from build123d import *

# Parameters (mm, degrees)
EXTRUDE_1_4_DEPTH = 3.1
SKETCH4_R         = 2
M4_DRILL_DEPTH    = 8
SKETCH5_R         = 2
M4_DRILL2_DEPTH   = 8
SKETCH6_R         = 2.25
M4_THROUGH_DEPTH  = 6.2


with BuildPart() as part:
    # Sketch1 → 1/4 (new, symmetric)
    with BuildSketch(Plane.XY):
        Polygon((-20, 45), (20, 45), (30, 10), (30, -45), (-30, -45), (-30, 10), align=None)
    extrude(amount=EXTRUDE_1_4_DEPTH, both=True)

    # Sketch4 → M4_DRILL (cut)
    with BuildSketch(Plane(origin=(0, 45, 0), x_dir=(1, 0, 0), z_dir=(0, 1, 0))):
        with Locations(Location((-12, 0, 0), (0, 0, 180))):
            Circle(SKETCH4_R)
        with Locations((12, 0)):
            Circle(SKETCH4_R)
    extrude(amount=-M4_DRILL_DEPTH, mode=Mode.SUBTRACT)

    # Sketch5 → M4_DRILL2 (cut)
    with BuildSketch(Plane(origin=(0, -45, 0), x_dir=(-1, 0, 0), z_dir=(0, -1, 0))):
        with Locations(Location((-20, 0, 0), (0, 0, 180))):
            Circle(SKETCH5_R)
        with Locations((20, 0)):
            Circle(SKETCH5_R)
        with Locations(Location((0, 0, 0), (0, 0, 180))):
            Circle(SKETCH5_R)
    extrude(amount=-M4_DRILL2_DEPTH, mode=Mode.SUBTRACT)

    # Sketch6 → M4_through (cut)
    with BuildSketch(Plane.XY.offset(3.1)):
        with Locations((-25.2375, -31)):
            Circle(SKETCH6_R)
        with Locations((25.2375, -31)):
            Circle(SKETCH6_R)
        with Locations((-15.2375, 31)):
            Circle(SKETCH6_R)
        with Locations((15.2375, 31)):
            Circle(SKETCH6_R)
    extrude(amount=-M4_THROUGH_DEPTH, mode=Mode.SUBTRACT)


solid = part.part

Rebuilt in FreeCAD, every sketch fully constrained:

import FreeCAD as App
import Part
import Sketcher
from FreeCAD import Vector

doc = App.newDocument("Part")
body = doc.addObject("PartDesign::Body", "Body")

# Sketch on XY plane
sketch1 = body.newObject("Sketcher::SketchObject", "Sketch")
sketch1.AttachmentSupport = (doc.getObject("XY_Plane"), [""])
sketch1.MapMode = "FlatFace"
sketch1.addGeometry([
    Part.LineSegment(Vector(20, 45, 0), Vector(-20, 45, 0)),  # 0
    Part.LineSegment(Vector(-20, 45, 0), Vector(-30, 10, 0)),  # 1
    Part.LineSegment(Vector(-30, 10, 0), Vector(-30, -45, 0)),  # 2
    Part.LineSegment(Vector(-30, -45, 0), Vector(30, -45, 0)),  # 3
    Part.LineSegment(Vector(30, -45, 0), Vector(30, 10, 0)),  # 4
    Part.LineSegment(Vector(30, 10, 0), Vector(20, 45, 0)),  # 5
], False)
sketch1.addConstraint([
    Sketcher.Constraint("Coincident", 0, 2, 1, 1),
    Sketcher.Constraint("Coincident", 1, 2, 2, 1),
    Sketcher.Constraint("Coincident", 2, 2, 3, 1),
    Sketcher.Constraint("Coincident", 3, 2, 4, 1),
    Sketcher.Constraint("Coincident", 4, 2, 5, 1),
    Sketcher.Constraint("Coincident", 5, 2, 0, 1),
    Sketcher.Constraint("Horizontal", 0),
    Sketcher.Constraint("Vertical", 2),
    Sketcher.Constraint("Horizontal", 3),
    Sketcher.Constraint("Vertical", 4),
    Sketcher.Constraint("Symmetric", 1, 2, 4, 2, -2),
    Sketcher.Constraint("Equal", 1, 5),
    Sketcher.Constraint("DistanceX", 0, 2, 0, 1, 40.0),
    Sketcher.Constraint("DistanceX", 3, 1, 3, 2, 60.0),
    Sketcher.Constraint("DistanceY", 2, 2, 2, 1, 55.0),
    Sketcher.Constraint("DistanceY", -1, 1, 0, 2, 45.0),
    Sketcher.Constraint("DistanceY", -1, 1, 1, 2, 10.0),
])
pad1 = body.newObject("PartDesign::Pad", "Pad")
pad1.Profile = sketch1
pad1.Length = 6.2
pad1.Midplane = True

# Sketch on XZ plane
sketch2 = body.newObject("Sketcher::SketchObject", "Sketch001")
sketch2.AttachmentSupport = (doc.getObject("XZ_Plane"), [""])
sketch2.MapMode = "FlatFace"
sketch2.AttachmentOffset = App.Placement(Vector(0, 0, -45), App.Rotation())
sketch2.addGeometry([
    Part.Circle(Vector(-12, 0, 0), Vector(0, 0, 1), 2),
    Part.Circle(Vector(12, 0, 0), Vector(0, 0, 1), 2),
], False)
sketch2.addConstraint([
    Sketcher.Constraint("Equal", 0, 1),
    Sketcher.Constraint("Symmetric", 0, 3, 1, 3, -1, 1),
    Sketcher.Constraint("PointOnObject", 0, 3, -1),
    Sketcher.Constraint("Diameter", 0, 4.0),
    Sketcher.Constraint("DistanceX", 0, 3, -1, 1, 12.0),
])
pocket1 = body.newObject("PartDesign::Pocket", "Pocket")
pocket1.Profile = sketch2
pocket1.Length = 8
pocket1.Reversed = True

# Sketch on XZ plane
sketch3 = body.newObject("Sketcher::SketchObject", "Sketch002")
sketch3.AttachmentSupport = (doc.getObject("XZ_Plane"), [""])
sketch3.MapMode = "FlatFace"
sketch3.AttachmentOffset = App.Placement(Vector(0, 0, 45), App.Rotation())
sketch3.addGeometry([
    Part.Circle(Vector(20, 0, 0), Vector(0, 0, 1), 2),
    Part.Circle(Vector(-20, 0, 0), Vector(0, 0, 1), 2),
    Part.Circle(Vector(0, 0, 0), Vector(0, 0, 1), 2),
], False)
sketch3.addConstraint([
    Sketcher.Constraint("Coincident", 2, 3, -1, 1),
    Sketcher.Constraint("Equal", 0, 1),
    Sketcher.Constraint("Equal", 1, 2),
    Sketcher.Constraint("Symmetric", 0, 3, 1, 3, -1, 1),
    Sketcher.Constraint("PointOnObject", 0, 3, -1),
    Sketcher.Constraint("Diameter", 0, 4.0),
    Sketcher.Constraint("DistanceX", -1, 1, 0, 3, 20.0),
])
pocket2 = body.newObject("PartDesign::Pocket", "Pocket001")
pocket2.Profile = sketch3
pocket2.Length = 8

# Sketch on XY plane
sketch4 = body.newObject("Sketcher::SketchObject", "Sketch003")
sketch4.AttachmentSupport = (doc.getObject("XY_Plane"), [""])
sketch4.MapMode = "FlatFace"
sketch4.AttachmentOffset = App.Placement(Vector(0, 0, 3.1), App.Rotation())
sketch4.addGeometry([
    Part.Circle(Vector(-25.2375, -31, 0), Vector(0, 0, 1), 2.25),
    Part.Circle(Vector(25.2375, -31, 0), Vector(0, 0, 1), 2.25),
    Part.Circle(Vector(-15.2375, 31, 0), Vector(0, 0, 1), 2.25),
    Part.Circle(Vector(15.2375, 31, 0), Vector(0, 0, 1), 2.25),
], False)
sketch4.addConstraint([
    Sketcher.Constraint("Equal", 0, 1),
    Sketcher.Constraint("Equal", 1, 2),
    Sketcher.Constraint("Equal", 2, 3),
    Sketcher.Constraint("Symmetric", 0, 3, 1, 3, -2),
    Sketcher.Constraint("Symmetric", 2, 3, 3, 3, -2),
    Sketcher.Constraint("Diameter", 0, 4.5),
    Sketcher.Constraint("DistanceY", 0, 3, -1, 1, 31.0),
    Sketcher.Constraint("DistanceY", -1, 1, 2, 3, 31.0),
    Sketcher.Constraint("DistanceX", 0, 3, 2, 3, 10.0),
    Sketcher.Constraint("DistanceX", 0, 3, 1, 3, 50.475),
])
pocket3 = body.newObject("PartDesign::Pocket", "Pocket002")
pocket3.Profile = sketch4
pocket3.Length = 6.2

doc.recompute()
